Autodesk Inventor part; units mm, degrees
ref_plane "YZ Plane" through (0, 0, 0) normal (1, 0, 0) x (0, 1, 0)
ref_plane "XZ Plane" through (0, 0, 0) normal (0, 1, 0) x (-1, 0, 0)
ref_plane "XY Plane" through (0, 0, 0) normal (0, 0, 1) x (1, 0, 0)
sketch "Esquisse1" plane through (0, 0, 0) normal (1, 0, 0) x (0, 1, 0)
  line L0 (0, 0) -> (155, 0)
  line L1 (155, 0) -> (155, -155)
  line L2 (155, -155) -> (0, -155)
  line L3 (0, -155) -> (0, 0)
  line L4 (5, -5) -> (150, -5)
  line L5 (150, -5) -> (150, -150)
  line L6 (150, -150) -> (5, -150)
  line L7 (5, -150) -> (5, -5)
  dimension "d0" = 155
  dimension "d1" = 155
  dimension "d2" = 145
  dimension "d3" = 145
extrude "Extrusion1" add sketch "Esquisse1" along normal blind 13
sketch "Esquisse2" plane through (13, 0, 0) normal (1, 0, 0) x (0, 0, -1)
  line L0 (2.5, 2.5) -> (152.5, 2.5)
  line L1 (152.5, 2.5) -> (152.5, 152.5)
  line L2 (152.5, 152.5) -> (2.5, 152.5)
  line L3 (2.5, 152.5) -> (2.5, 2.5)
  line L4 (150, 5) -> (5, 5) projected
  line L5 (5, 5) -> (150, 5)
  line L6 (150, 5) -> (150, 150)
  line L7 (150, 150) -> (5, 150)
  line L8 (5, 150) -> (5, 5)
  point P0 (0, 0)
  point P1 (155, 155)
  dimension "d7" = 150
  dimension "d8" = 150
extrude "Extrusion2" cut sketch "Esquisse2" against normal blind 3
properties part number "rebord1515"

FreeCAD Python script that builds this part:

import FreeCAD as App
import Part
import Sketcher
from FreeCAD import Vector
Q = App.Units.Quantity


def add_polygon(sketch, points):
    """Adds a closed chain of lines whose ends are joined by coincident constraints."""
    first, n = sketch.GeometryCount, len(points)
    for a, b in zip(points, points[1:] + points[:1]):
        sketch.addGeometry(Part.LineSegment(App.Vector(*a, 0), App.Vector(*b, 0)), False)
    for i in range(n):
        sketch.addConstraint(Sketcher.Constraint("Coincident", first + i, 2, first + (i + 1) % n, 1))

doc = App.newDocument("Part")
body = doc.addObject("PartDesign::Body", "Body")

sketch1 = doc.addObject("Sketcher::SketchObject", "Sketch")
body.addObject(sketch1)
sketch1.AttachmentSupport = (doc.YZ_Plane, [""])
sketch1.MapMode = "FlatFace"
add_polygon(sketch1, [(155, 0), (0, 0), (0, -155), (155, -155)])
add_polygon(sketch1, [(5, -150), (5, -5), (150, -5), (150, -150)])
sketch1.addConstraint(Sketcher.Constraint("Horizontal", 0))
sketch1.addConstraint(Sketcher.Constraint("Vertical", 1))
sketch1.addConstraint(Sketcher.Constraint("Horizontal", 2))
sketch1.addConstraint(Sketcher.Constraint("Vertical", 3))
sketch1.addConstraint(Sketcher.Constraint("Vertical", 4))
sketch1.addConstraint(Sketcher.Constraint("Horizontal", 5))
sketch1.addConstraint(Sketcher.Constraint("Vertical", 6))
sketch1.addConstraint(Sketcher.Constraint("Horizontal", 7))
sketch1.addConstraint(Sketcher.Constraint("Coincident", 0, 2, -1, 1))
sketch1.addConstraint(Sketcher.Constraint("Equal", 2, 1))
sketch1.addConstraint(Sketcher.Constraint("Equal", 7, 4))
sketch1.addConstraint(Sketcher.Constraint("DistanceX", 0, 2, 0, 1, Q("155 mm")))
sketch1.addConstraint(Sketcher.Constraint("DistanceX", 5, 1, 5, 2, Q("145 mm")))
sketch1.addConstraint(Sketcher.Constraint("DistanceX", -1, 1, 4, 2, Q("5 mm")))
sketch1.addConstraint(Sketcher.Constraint("DistanceY", 4, 2, -1, 1, Q("5 mm")))
pad1 = doc.addObject("PartDesign::Pad", "Pad")
body.addObject(pad1)
pad1.Profile = sketch1
pad1.Length = 13

sketch2 = doc.addObject("Sketcher::SketchObject", "Sketch001")
body.addObject(sketch2)
sketch2.AttachmentSupport = (doc.YZ_Plane, [""])
sketch2.MapMode = "FlatFace"
sketch2.AttachmentOffset = App.Placement(Vector(0, 0, 13), App.Rotation())
add_polygon(sketch2, [(152, -2), (2, -2), (2, -152), (152, -152)])
add_polygon(sketch2, [(150, -150), (5, -150), (5, -5), (150, -5)])
sketch2.addConstraint(Sketcher.Constraint("Horizontal", 0))
sketch2.addConstraint(Sketcher.Constraint("Vertical", 1))
sketch2.addConstraint(Sketcher.Constraint("Horizontal", 2))
sketch2.addConstraint(Sketcher.Constraint("Vertical", 3))
sketch2.addConstraint(Sketcher.Constraint("Horizontal", 4))
sketch2.addConstraint(Sketcher.Constraint("Vertical", 5))
sketch2.addConstraint(Sketcher.Constraint("Horizontal", 6))
sketch2.addConstraint(Sketcher.Constraint("Vertical", 7))
sketch2.addConstraint(Sketcher.Constraint("Equal", 2, 1))
sketch2.addConstraint(Sketcher.Constraint("Equal", 6, 5))
sketch2.addConstraint(Sketcher.Constraint("DistanceX", 0, 2, 0, 1, Q("150 mm")))
sketch2.addConstraint(Sketcher.Constraint("DistanceY", 4, 2, -1, 1, Q("150 mm")))
sketch2.addConstraint(Sketcher.Constraint("DistanceX", -1, 1, 6, 2, Q("150 mm")))
sketch2.addConstraint(Sketcher.Constraint("DistanceX", 4, 2, 4, 1, Q("145 mm")))
sketch2.addConstraint(Sketcher.Constraint("DistanceX", -1, 1, 0, 2, Q("2.5 mm")))
sketch2.addConstraint(Sketcher.Constraint("DistanceY", 0, 2, -1, 1, Q("2.5 mm")))
pocket1 = doc.addObject("PartDesign::Pocket", "Pocket")
body.addObject(pocket1)
pocket1.Profile = sketch2
pocket1.Length = 3

doc.recompute()
